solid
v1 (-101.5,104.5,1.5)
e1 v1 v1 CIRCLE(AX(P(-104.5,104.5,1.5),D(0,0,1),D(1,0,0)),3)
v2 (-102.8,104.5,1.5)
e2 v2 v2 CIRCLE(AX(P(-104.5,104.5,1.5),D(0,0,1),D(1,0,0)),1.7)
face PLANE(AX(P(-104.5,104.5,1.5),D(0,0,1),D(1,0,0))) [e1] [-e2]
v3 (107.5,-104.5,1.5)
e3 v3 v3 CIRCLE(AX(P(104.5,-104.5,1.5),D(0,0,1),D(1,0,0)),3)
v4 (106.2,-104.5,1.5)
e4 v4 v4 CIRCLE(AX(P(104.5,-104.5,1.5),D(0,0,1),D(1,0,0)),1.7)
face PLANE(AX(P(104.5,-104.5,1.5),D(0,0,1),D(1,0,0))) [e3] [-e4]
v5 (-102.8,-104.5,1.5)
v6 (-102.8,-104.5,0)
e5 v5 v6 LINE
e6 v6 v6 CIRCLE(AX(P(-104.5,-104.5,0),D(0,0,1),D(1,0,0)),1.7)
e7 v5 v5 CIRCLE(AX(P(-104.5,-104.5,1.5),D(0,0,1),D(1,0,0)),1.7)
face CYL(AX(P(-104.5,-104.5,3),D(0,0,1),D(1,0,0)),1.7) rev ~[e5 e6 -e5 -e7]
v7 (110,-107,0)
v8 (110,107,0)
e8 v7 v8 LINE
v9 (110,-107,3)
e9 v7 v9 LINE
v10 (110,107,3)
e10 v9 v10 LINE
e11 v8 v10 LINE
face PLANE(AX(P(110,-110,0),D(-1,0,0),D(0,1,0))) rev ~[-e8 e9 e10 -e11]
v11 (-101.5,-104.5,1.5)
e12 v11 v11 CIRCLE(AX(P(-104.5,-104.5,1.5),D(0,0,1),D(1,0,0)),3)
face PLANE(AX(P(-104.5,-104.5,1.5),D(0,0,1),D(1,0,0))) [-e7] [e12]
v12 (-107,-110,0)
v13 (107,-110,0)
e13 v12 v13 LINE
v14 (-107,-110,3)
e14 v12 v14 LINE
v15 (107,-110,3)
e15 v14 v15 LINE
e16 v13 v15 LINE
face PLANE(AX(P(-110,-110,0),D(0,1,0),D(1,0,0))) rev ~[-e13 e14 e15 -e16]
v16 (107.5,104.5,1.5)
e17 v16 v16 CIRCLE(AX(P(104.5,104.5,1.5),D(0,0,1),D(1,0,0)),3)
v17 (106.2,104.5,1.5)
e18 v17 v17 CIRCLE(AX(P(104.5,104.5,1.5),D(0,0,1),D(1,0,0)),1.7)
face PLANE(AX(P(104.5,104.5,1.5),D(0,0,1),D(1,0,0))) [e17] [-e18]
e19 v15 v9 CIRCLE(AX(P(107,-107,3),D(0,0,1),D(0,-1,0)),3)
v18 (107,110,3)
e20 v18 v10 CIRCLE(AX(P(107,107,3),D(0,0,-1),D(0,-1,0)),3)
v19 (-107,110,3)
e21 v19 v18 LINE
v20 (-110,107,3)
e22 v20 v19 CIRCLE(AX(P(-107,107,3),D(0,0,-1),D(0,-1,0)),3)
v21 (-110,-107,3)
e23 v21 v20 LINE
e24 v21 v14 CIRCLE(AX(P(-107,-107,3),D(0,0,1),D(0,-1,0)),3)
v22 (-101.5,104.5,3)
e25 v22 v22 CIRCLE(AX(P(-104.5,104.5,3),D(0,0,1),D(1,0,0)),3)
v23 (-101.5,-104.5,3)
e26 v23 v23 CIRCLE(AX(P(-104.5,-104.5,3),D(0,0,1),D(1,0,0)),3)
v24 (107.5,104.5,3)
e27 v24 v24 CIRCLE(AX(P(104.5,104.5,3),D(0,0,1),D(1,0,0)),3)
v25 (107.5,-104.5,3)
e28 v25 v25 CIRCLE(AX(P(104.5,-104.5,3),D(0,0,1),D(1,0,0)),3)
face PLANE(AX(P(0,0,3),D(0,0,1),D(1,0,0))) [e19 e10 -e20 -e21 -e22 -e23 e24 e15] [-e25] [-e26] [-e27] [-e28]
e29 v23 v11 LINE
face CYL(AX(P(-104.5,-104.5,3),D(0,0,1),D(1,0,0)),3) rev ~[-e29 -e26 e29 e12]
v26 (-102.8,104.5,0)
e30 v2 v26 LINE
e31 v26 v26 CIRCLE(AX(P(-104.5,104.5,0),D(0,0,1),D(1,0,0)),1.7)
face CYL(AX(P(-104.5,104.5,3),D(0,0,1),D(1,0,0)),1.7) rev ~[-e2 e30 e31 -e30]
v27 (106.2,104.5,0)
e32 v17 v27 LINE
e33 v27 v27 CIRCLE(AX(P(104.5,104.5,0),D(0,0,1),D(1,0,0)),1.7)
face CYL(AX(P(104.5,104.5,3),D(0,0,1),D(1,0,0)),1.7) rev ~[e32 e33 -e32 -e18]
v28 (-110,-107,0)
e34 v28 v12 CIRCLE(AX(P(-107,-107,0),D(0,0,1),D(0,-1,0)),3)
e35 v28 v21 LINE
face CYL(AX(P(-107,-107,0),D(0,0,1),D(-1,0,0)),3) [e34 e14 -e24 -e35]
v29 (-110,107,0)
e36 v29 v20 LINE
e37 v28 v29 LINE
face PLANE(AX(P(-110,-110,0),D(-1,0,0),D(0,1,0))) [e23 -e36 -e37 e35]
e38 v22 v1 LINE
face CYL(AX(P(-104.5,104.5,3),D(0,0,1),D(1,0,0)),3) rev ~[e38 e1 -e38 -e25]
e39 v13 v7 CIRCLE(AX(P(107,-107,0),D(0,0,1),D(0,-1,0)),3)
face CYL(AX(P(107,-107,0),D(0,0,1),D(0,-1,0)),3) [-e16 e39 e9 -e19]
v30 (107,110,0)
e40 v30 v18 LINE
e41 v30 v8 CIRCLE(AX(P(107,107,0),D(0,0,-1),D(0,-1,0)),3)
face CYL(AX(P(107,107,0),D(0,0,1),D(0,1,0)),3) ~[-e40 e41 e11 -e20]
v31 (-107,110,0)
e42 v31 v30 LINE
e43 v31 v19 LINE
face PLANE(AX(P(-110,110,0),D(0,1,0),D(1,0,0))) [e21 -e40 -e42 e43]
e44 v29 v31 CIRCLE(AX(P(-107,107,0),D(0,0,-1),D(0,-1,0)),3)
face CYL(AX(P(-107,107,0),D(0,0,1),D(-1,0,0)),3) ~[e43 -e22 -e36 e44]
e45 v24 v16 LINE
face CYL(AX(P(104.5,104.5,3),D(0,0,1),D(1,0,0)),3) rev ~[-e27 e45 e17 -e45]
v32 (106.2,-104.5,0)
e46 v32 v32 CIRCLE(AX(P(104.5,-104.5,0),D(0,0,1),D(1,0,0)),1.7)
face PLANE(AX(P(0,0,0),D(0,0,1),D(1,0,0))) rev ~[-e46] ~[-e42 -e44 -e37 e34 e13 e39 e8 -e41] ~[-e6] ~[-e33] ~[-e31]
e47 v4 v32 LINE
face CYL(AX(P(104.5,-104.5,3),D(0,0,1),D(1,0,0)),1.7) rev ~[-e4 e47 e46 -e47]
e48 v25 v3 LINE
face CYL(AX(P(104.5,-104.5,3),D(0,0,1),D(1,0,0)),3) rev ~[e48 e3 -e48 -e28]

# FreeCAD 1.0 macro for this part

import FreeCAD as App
import Part
import Sketcher
from FreeCAD import Vector
Q = App.Units.Quantity


def edges_at(feature, points):
    """Names of the edges that pass closest to the given points."""
    edges = feature.Shape.Edges
    near = lambda p: min(range(len(edges)), key=lambda i: edges[i].distToShape(Part.Vertex(*p))[0])
    return sorted({f"Edge{near(p) + 1}" for p in points})

doc = App.newDocument("Part")
body = doc.addObject("PartDesign::Body", "Body")

sketch1 = body.newObject("Sketcher::SketchObject", "Sketch")
sketch1.AttachmentSupport = (doc.getObject("XY_Plane"), [""])
sketch1.MapMode = "FlatFace"
sketch1.addGeometry(Part.LineSegment(Vector(-110, 110, 0), Vector(-110, -110, 0)), False)
sketch1.addGeometry(Part.LineSegment(Vector(-110, -110, 0), Vector(110, -110, 0)), False)
sketch1.addGeometry(Part.LineSegment(Vector(110, -110, 0), Vector(110, 110, 0)), False)
sketch1.addGeometry(Part.LineSegment(Vector(110, 110, 0), Vector(-110, 110, 0)), False)
sketch1.addConstraint(Sketcher.Constraint("Coincident", 0, 2, 1, 1))
sketch1.addConstraint(Sketcher.Constraint("Coincident", 1, 2, 2, 1))
sketch1.addConstraint(Sketcher.Constraint("Coincident", 2, 2, 3, 1))
sketch1.addConstraint(Sketcher.Constraint("Coincident", 3, 2, 0, 1))
sketch1.addConstraint(Sketcher.Constraint("Vertical", 0))
sketch1.addConstraint(Sketcher.Constraint("Horizontal", 1))
sketch1.addConstraint(Sketcher.Constraint("Vertical", 2))
sketch1.addConstraint(Sketcher.Constraint("Horizontal", 3))
sketch1.addConstraint(Sketcher.Constraint("Symmetric", 0, 2, 2, 2, -1, 1))
sketch1.addConstraint(Sketcher.Constraint("Equal", 3, 0))
sketch1.addConstraint(Sketcher.Constraint("DistanceX", 1, 1, 1, 2, Q("220 mm")))
pad1 = body.newObject("PartDesign::Pad", "Pad")
pad1.Profile = sketch1
pad1.Length = 3

sketch2 = body.newObject("Sketcher::SketchObject", "Sketch001")
sketch2.AttachmentSupport = (doc.getObject("XY_Plane"), [""])
sketch2.MapMode = "FlatFace"
sketch2.AttachmentOffset = App.Placement(Vector(0, 0, 3), App.Rotation())
sketch2.addGeometry(Part.Circle(Vector(-104.5, 104.5, 0), Vector(0, 0, 1), 1.7), False)
sketch2.addGeometry(Part.Circle(Vector(-104.5, -104.5, 0), Vector(0, 0, 1), 1.7), False)
sketch2.addGeometry(Part.Circle(Vector(104.5, -104.5, 0), Vector(0, 0, 1), 1.7), False)
sketch2.addGeometry(Part.Circle(Vector(104.5, 104.5, 0), Vector(0, 0, 1), 1.7), False)
sketch2.addConstraint(Sketcher.Constraint("Equal", 0, 1))
sketch2.addConstraint(Sketcher.Constraint("Equal", 1, 2))
sketch2.addConstraint(Sketcher.Constraint("Equal", 2, 3))
sketch2.addConstraint(Sketcher.Constraint("Symmetric", 0, 3, 2, 3, -1, 1))
sketch2.addConstraint(Sketcher.Constraint("Symmetric", 1, 3, 3, 3, -1, 1))
sketch2.addConstraint(Sketcher.Constraint("Symmetric", 1, 3, 2, 3, -2))
sketch2.addConstraint(Sketcher.Constraint("Diameter", 0, Q("3.4 mm")))
sketch2.addConstraint(Sketcher.Constraint("DistanceY", 1, 3, 0, 3, Q("209 mm")))
sketch2.addConstraint(Sketcher.Constraint("DistanceX", 1, 3, 2, 3, Q("209 mm")))
pocket1 = body.newObject("PartDesign::Pocket", "Pocket")
pocket1.Profile = sketch2
pocket1.Type = "ThroughAll"

sketch3 = body.newObject("Sketcher::SketchObject", "Sketch002")
sketch3.AttachmentSupport = (doc.getObject("XY_Plane"), [""])
sketch3.MapMode = "FlatFace"
sketch3.AttachmentOffset = App.Placement(Vector(0, 0, 3), App.Rotation())
sketch3.addGeometry(Part.Circle(Vector(-104.5, 104.5, 0), Vector(0, 0, 1), 3), False)
sketch3.addGeometry(Part.Circle(Vector(-104.5, -104.5, 0), Vector(0, 0, 1), 3), False)
sketch3.addGeometry(Part.Circle(Vector(104.5, -104.5, 0), Vector(0, 0, 1), 3), False)
sketch3.addGeometry(Part.Circle(Vector(104.5, 104.5, 0), Vector(0, 0, 1), 3), False)
sketch3.addConstraint(Sketcher.Constraint("Equal", 0, 1))
sketch3.addConstraint(Sketcher.Constraint("Equal", 1, 2))
sketch3.addConstraint(Sketcher.Constraint("Equal", 2, 3))
sketch3.addConstraint(Sketcher.Constraint("Symmetric", 0, 3, 2, 3, -1, 1))
sketch3.addConstraint(Sketcher.Constraint("Symmetric", 1, 3, 3, 3, -1, 1))
sketch3.addConstraint(Sketcher.Constraint("Symmetric", 1, 3, 2, 3, -2))
sketch3.addConstraint(Sketcher.Constraint("Diameter", 0, Q("6 mm")))
sketch3.addConstraint(Sketcher.Constraint("DistanceY", 1, 3, 0, 3, Q("209 mm")))
sketch3.addConstraint(Sketcher.Constraint("DistanceX", 1, 3, 2, 3, Q("209 mm")))
pocket2 = body.newObject("PartDesign::Pocket", "Pocket001")
pocket2.Profile = sketch3
pocket2.Length = 1.5
doc.recompute()

fillet = body.newObject("PartDesign::Fillet", "Fillet")
fillet.Base = (pocket2, edges_at(pocket2, [
    (-110, 110, 1.5),
    (-110, -110, 1.5),
    (110, -110, 1.5),
    (110, 110, 1.5),
]))
fillet.Radius = 3

doc.recompute()
